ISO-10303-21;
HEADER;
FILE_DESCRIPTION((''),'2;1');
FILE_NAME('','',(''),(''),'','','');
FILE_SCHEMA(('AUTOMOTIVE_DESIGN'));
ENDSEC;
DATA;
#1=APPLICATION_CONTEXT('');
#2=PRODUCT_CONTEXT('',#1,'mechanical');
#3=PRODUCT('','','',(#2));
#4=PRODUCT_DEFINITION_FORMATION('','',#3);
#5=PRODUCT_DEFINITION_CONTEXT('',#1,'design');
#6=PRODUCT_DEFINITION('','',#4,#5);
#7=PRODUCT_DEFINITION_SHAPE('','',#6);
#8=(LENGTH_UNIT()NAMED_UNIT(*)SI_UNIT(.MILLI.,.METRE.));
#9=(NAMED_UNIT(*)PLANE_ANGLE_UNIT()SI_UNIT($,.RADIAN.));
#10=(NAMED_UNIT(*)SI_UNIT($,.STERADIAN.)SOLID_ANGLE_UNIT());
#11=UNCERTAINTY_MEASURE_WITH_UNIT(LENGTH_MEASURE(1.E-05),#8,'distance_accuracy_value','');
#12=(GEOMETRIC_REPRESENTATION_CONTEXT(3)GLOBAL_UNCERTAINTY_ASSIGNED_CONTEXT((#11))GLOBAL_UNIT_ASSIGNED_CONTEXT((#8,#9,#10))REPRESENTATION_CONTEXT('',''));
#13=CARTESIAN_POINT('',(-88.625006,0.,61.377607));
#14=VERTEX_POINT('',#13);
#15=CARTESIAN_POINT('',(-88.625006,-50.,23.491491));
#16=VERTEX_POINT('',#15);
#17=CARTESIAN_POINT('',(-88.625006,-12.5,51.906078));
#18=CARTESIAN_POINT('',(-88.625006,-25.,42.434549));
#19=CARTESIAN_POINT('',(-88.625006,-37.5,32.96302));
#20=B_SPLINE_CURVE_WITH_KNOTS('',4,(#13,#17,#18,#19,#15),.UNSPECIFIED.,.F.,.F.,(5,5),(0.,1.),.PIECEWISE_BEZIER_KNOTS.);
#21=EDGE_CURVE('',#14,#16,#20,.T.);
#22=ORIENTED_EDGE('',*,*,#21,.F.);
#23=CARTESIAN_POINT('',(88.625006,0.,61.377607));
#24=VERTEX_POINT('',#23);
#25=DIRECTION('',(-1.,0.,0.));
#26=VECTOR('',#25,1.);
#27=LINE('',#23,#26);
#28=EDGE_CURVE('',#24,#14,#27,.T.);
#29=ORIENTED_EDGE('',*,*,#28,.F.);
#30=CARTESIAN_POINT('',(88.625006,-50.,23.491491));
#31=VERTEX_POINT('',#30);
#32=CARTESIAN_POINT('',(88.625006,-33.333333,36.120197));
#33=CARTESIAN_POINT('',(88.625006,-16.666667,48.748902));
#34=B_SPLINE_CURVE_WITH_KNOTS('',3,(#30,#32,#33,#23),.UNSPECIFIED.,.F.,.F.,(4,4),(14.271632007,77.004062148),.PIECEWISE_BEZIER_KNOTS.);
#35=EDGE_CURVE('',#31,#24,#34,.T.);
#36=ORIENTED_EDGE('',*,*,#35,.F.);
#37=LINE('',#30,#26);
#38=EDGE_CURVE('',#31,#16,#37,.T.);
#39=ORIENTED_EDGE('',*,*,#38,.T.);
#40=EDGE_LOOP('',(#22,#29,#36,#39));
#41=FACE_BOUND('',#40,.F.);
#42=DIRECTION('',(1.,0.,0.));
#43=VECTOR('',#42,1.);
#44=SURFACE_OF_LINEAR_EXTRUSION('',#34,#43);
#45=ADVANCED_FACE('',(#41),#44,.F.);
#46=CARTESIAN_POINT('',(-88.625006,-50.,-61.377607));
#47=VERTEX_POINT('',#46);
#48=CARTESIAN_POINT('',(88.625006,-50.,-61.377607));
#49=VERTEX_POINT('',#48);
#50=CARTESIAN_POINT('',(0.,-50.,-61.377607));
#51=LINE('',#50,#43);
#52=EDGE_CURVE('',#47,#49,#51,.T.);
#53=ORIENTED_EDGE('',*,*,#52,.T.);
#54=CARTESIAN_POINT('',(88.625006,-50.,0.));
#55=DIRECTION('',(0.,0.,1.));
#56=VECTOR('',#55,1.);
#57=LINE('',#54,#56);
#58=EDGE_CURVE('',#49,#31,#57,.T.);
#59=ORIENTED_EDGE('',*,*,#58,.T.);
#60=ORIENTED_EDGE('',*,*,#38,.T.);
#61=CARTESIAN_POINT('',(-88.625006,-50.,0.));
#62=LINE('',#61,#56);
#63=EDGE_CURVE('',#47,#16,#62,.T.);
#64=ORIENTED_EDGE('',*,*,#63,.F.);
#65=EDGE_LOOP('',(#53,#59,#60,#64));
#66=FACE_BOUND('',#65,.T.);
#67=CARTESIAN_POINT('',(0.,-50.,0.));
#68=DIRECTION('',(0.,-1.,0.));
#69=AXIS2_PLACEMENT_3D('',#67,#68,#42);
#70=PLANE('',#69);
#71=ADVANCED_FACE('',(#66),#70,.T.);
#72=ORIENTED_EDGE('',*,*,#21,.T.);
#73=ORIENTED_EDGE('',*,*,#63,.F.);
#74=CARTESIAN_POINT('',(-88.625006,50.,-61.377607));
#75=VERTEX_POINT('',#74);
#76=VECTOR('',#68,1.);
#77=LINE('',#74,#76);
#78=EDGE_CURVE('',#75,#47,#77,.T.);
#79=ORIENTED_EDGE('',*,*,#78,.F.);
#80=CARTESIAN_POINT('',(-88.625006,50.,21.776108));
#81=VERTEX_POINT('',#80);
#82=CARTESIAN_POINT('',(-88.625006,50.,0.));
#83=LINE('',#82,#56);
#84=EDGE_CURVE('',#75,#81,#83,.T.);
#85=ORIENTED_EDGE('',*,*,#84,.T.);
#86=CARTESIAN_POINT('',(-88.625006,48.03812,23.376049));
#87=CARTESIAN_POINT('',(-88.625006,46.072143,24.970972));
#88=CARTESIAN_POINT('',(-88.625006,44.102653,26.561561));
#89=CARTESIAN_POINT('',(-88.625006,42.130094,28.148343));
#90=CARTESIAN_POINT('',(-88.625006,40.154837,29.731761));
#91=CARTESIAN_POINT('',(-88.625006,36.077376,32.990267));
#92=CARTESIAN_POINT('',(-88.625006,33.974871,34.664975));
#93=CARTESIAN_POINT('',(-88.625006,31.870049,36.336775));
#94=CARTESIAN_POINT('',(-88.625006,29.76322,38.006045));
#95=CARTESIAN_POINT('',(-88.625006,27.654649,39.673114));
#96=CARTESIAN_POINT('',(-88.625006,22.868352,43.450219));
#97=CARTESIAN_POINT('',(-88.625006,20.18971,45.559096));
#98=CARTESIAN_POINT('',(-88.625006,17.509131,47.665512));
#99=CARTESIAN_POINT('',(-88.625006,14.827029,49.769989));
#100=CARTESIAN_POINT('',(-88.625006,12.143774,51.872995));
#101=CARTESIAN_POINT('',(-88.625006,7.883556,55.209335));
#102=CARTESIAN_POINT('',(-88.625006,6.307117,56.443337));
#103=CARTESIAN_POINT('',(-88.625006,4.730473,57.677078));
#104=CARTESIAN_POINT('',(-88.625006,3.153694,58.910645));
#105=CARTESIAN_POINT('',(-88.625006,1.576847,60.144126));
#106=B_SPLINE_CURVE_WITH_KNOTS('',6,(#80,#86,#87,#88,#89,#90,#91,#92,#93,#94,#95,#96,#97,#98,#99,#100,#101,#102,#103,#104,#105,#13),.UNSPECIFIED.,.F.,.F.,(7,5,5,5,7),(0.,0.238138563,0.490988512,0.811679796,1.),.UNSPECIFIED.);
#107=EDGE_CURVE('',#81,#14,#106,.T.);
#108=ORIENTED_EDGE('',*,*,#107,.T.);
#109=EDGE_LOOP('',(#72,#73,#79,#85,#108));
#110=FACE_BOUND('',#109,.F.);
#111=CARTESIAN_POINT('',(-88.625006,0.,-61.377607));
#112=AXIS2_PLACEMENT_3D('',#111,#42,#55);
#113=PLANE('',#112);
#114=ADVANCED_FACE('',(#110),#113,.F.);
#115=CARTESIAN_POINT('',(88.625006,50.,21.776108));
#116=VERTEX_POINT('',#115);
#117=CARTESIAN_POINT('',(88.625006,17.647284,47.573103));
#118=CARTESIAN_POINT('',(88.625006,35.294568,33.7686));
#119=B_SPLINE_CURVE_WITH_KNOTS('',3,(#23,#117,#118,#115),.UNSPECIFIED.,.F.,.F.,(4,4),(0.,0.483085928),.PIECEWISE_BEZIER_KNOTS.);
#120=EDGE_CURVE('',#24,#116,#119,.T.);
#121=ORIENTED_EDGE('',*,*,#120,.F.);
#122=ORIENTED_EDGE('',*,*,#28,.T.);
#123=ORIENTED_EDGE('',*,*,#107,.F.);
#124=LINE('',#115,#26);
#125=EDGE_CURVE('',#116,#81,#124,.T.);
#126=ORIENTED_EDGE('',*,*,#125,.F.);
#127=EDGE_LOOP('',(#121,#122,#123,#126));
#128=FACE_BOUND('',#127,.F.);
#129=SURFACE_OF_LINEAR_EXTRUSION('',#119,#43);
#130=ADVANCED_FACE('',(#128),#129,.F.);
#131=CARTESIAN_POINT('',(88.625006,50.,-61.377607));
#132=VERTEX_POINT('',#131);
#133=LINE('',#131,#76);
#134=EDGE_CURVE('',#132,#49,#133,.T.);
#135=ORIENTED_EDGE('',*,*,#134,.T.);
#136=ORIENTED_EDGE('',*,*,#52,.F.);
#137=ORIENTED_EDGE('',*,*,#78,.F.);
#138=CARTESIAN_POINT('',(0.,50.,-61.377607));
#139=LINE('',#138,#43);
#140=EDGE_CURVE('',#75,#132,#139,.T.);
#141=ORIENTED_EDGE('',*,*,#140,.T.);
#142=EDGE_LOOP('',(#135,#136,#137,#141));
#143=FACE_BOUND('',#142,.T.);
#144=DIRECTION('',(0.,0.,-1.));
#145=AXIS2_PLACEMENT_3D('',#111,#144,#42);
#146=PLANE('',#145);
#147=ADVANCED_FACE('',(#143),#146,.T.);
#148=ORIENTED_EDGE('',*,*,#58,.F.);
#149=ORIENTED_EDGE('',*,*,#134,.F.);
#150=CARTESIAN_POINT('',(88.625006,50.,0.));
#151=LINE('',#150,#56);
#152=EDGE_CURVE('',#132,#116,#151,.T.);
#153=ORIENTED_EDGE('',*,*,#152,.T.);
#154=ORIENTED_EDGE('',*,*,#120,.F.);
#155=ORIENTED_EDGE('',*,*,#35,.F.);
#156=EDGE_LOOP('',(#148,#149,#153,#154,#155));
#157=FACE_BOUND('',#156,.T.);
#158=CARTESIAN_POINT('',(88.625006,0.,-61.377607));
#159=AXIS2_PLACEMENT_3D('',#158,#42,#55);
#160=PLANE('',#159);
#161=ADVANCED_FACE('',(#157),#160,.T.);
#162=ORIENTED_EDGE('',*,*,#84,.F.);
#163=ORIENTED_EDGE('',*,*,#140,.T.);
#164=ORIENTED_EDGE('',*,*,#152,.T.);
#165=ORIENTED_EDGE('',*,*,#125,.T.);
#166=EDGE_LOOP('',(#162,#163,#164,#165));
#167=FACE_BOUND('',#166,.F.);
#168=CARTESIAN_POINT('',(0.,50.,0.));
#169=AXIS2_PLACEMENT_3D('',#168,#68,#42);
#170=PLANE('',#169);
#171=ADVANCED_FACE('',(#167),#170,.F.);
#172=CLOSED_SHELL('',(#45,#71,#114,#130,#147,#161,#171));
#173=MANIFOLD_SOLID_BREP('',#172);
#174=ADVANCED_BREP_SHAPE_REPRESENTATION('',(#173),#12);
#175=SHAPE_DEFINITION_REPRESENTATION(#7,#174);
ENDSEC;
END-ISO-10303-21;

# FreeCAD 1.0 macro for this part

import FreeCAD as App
import Part
import Sketcher

doc = App.newDocument("Part")
body = doc.addObject("PartDesign::Body", "Body")

# Sketch on XZ plane
sketch1 = body.newObject("Sketcher::SketchObject", "Sketch")
sketch1.AttachmentSupport = (doc.getObject("XZ_Plane"), [""])
sketch1.MapMode = "FlatFace"
sketch1.addGeometry(Part.LineSegment(App.Vector(-88.625006, 61.377607, 0), App.Vector(-88.625006, -61.377607, 0)), False)
sketch1.addGeometry(Part.LineSegment(App.Vector(-88.625006, -61.377607, 0), App.Vector(88.625006, -61.377607, 0)), False)
sketch1.addGeometry(Part.LineSegment(App.Vector(88.625006, -61.377607, 0), App.Vector(88.625006, 61.377607, 0)), False)
sketch1.addGeometry(Part.LineSegment(App.Vector(88.625006, 61.377607, 0), App.Vector(-88.625006, 61.377607, 0)), False)
sketch1.addConstraint(Sketcher.Constraint("Coincident", 0, 2, 1, 1))
sketch1.addConstraint(Sketcher.Constraint("Coincident", 1, 2, 2, 1))
sketch1.addConstraint(Sketcher.Constraint("Coincident", 2, 2, 3, 1))
sketch1.addConstraint(Sketcher.Constraint("Coincident", 3, 2, 0, 1))
sketch1.addConstraint(Sketcher.Constraint("Vertical", 0))
sketch1.addConstraint(Sketcher.Constraint("Horizontal", 1))
sketch1.addConstraint(Sketcher.Constraint("Vertical", 2))
sketch1.addConstraint(Sketcher.Constraint("Horizontal", 3))
sketch1.addConstraint(Sketcher.Constraint("Symmetric", 0, 2, 2, 2, -1, 1))
sketch1.addConstraint(Sketcher.Constraint("DistanceX", 1, 1, 1, 2, 177.250013))
sketch1.addConstraint(Sketcher.Constraint("DistanceY", 0, 2, 0, 1, 122.755215))
pad1 = body.newObject("PartDesign::Pad", "Pad")
pad1.Profile = sketch1
pad1.Length = 100
pad1.Midplane = True

# Sketch on YZ plane
sketch2 = body.newObject("Sketcher::SketchObject", "Sketch001")
sketch2.AttachmentSupport = (doc.getObject("YZ_Plane"), [""])
sketch2.MapMode = "FlatFace"
sketch2.AttachmentOffset = App.Placement(App.Vector(0, 0, 88.625006), App.Rotation())
sketch2.addGeometry(Part.LineSegment(App.Vector(-50, 61.377607, 0), App.Vector(-50, 23.491491, 0)), False)
sketch2.addGeometry(Part.BSplineCurve([App.Vector(-50, 23.491491, 0), App.Vector(-33.333333, 36.120197, 0), App.Vector(-16.666667, 48.748902, 0), App.Vector(0, 61.377607, 0)], [4, 4], [14.271632007, 77.004062148], False, 3, [1, 1, 1, 1], False), False)
sketch2.addGeometry(Part.LineSegment(App.Vector(0, 61.377607, 0), App.Vector(-50, 61.377607, 0)), False)
sketch2.addGeometry(Part.LineSegment(App.Vector(50, 61.377607, 0), App.Vector(0, 61.377607, 0)), False)
sketch2.addGeometry(Part.BSplineCurve([App.Vector(0, 61.377607, 0), App.Vector(17.647284, 47.573103, 0), App.Vector(35.294568, 33.7686, 0), App.Vector(50, 21.776108, 0)], [4, 4], [0, 0.483085928], False, 3, [1, 1, 1, 1], False), False)
sketch2.addGeometry(Part.LineSegment(App.Vector(50, 21.776108, 0), App.Vector(50, 61.377607, 0)), False)
sketch2.addConstraint(Sketcher.Constraint("Block", 1))
sketch2.addConstraint(Sketcher.Constraint("Block", 4))
sketch2.addConstraint(Sketcher.Constraint("Coincident", 0, 2, 1, 1))
sketch2.addConstraint(Sketcher.Constraint("Coincident", 1, 2, 2, 1))
sketch2.addConstraint(Sketcher.Constraint("Coincident", 2, 2, 0, 1))
sketch2.addConstraint(Sketcher.Constraint("Coincident", 3, 2, 4, 1))
sketch2.addConstraint(Sketcher.Constraint("Coincident", 4, 2, 5, 1))
sketch2.addConstraint(Sketcher.Constraint("Coincident", 5, 2, 3, 1))
sketch2.addConstraint(Sketcher.Constraint("Vertical", 0))
sketch2.addConstraint(Sketcher.Constraint("Horizontal", 2))
sketch2.addConstraint(Sketcher.Constraint("Horizontal", 3))
sketch2.addConstraint(Sketcher.Constraint("Vertical", 5))
pocket1 = body.newObject("PartDesign::Pocket", "Pocket")
pocket1.Profile = sketch2
pocket1.Length = 281.4

doc.recompute()
